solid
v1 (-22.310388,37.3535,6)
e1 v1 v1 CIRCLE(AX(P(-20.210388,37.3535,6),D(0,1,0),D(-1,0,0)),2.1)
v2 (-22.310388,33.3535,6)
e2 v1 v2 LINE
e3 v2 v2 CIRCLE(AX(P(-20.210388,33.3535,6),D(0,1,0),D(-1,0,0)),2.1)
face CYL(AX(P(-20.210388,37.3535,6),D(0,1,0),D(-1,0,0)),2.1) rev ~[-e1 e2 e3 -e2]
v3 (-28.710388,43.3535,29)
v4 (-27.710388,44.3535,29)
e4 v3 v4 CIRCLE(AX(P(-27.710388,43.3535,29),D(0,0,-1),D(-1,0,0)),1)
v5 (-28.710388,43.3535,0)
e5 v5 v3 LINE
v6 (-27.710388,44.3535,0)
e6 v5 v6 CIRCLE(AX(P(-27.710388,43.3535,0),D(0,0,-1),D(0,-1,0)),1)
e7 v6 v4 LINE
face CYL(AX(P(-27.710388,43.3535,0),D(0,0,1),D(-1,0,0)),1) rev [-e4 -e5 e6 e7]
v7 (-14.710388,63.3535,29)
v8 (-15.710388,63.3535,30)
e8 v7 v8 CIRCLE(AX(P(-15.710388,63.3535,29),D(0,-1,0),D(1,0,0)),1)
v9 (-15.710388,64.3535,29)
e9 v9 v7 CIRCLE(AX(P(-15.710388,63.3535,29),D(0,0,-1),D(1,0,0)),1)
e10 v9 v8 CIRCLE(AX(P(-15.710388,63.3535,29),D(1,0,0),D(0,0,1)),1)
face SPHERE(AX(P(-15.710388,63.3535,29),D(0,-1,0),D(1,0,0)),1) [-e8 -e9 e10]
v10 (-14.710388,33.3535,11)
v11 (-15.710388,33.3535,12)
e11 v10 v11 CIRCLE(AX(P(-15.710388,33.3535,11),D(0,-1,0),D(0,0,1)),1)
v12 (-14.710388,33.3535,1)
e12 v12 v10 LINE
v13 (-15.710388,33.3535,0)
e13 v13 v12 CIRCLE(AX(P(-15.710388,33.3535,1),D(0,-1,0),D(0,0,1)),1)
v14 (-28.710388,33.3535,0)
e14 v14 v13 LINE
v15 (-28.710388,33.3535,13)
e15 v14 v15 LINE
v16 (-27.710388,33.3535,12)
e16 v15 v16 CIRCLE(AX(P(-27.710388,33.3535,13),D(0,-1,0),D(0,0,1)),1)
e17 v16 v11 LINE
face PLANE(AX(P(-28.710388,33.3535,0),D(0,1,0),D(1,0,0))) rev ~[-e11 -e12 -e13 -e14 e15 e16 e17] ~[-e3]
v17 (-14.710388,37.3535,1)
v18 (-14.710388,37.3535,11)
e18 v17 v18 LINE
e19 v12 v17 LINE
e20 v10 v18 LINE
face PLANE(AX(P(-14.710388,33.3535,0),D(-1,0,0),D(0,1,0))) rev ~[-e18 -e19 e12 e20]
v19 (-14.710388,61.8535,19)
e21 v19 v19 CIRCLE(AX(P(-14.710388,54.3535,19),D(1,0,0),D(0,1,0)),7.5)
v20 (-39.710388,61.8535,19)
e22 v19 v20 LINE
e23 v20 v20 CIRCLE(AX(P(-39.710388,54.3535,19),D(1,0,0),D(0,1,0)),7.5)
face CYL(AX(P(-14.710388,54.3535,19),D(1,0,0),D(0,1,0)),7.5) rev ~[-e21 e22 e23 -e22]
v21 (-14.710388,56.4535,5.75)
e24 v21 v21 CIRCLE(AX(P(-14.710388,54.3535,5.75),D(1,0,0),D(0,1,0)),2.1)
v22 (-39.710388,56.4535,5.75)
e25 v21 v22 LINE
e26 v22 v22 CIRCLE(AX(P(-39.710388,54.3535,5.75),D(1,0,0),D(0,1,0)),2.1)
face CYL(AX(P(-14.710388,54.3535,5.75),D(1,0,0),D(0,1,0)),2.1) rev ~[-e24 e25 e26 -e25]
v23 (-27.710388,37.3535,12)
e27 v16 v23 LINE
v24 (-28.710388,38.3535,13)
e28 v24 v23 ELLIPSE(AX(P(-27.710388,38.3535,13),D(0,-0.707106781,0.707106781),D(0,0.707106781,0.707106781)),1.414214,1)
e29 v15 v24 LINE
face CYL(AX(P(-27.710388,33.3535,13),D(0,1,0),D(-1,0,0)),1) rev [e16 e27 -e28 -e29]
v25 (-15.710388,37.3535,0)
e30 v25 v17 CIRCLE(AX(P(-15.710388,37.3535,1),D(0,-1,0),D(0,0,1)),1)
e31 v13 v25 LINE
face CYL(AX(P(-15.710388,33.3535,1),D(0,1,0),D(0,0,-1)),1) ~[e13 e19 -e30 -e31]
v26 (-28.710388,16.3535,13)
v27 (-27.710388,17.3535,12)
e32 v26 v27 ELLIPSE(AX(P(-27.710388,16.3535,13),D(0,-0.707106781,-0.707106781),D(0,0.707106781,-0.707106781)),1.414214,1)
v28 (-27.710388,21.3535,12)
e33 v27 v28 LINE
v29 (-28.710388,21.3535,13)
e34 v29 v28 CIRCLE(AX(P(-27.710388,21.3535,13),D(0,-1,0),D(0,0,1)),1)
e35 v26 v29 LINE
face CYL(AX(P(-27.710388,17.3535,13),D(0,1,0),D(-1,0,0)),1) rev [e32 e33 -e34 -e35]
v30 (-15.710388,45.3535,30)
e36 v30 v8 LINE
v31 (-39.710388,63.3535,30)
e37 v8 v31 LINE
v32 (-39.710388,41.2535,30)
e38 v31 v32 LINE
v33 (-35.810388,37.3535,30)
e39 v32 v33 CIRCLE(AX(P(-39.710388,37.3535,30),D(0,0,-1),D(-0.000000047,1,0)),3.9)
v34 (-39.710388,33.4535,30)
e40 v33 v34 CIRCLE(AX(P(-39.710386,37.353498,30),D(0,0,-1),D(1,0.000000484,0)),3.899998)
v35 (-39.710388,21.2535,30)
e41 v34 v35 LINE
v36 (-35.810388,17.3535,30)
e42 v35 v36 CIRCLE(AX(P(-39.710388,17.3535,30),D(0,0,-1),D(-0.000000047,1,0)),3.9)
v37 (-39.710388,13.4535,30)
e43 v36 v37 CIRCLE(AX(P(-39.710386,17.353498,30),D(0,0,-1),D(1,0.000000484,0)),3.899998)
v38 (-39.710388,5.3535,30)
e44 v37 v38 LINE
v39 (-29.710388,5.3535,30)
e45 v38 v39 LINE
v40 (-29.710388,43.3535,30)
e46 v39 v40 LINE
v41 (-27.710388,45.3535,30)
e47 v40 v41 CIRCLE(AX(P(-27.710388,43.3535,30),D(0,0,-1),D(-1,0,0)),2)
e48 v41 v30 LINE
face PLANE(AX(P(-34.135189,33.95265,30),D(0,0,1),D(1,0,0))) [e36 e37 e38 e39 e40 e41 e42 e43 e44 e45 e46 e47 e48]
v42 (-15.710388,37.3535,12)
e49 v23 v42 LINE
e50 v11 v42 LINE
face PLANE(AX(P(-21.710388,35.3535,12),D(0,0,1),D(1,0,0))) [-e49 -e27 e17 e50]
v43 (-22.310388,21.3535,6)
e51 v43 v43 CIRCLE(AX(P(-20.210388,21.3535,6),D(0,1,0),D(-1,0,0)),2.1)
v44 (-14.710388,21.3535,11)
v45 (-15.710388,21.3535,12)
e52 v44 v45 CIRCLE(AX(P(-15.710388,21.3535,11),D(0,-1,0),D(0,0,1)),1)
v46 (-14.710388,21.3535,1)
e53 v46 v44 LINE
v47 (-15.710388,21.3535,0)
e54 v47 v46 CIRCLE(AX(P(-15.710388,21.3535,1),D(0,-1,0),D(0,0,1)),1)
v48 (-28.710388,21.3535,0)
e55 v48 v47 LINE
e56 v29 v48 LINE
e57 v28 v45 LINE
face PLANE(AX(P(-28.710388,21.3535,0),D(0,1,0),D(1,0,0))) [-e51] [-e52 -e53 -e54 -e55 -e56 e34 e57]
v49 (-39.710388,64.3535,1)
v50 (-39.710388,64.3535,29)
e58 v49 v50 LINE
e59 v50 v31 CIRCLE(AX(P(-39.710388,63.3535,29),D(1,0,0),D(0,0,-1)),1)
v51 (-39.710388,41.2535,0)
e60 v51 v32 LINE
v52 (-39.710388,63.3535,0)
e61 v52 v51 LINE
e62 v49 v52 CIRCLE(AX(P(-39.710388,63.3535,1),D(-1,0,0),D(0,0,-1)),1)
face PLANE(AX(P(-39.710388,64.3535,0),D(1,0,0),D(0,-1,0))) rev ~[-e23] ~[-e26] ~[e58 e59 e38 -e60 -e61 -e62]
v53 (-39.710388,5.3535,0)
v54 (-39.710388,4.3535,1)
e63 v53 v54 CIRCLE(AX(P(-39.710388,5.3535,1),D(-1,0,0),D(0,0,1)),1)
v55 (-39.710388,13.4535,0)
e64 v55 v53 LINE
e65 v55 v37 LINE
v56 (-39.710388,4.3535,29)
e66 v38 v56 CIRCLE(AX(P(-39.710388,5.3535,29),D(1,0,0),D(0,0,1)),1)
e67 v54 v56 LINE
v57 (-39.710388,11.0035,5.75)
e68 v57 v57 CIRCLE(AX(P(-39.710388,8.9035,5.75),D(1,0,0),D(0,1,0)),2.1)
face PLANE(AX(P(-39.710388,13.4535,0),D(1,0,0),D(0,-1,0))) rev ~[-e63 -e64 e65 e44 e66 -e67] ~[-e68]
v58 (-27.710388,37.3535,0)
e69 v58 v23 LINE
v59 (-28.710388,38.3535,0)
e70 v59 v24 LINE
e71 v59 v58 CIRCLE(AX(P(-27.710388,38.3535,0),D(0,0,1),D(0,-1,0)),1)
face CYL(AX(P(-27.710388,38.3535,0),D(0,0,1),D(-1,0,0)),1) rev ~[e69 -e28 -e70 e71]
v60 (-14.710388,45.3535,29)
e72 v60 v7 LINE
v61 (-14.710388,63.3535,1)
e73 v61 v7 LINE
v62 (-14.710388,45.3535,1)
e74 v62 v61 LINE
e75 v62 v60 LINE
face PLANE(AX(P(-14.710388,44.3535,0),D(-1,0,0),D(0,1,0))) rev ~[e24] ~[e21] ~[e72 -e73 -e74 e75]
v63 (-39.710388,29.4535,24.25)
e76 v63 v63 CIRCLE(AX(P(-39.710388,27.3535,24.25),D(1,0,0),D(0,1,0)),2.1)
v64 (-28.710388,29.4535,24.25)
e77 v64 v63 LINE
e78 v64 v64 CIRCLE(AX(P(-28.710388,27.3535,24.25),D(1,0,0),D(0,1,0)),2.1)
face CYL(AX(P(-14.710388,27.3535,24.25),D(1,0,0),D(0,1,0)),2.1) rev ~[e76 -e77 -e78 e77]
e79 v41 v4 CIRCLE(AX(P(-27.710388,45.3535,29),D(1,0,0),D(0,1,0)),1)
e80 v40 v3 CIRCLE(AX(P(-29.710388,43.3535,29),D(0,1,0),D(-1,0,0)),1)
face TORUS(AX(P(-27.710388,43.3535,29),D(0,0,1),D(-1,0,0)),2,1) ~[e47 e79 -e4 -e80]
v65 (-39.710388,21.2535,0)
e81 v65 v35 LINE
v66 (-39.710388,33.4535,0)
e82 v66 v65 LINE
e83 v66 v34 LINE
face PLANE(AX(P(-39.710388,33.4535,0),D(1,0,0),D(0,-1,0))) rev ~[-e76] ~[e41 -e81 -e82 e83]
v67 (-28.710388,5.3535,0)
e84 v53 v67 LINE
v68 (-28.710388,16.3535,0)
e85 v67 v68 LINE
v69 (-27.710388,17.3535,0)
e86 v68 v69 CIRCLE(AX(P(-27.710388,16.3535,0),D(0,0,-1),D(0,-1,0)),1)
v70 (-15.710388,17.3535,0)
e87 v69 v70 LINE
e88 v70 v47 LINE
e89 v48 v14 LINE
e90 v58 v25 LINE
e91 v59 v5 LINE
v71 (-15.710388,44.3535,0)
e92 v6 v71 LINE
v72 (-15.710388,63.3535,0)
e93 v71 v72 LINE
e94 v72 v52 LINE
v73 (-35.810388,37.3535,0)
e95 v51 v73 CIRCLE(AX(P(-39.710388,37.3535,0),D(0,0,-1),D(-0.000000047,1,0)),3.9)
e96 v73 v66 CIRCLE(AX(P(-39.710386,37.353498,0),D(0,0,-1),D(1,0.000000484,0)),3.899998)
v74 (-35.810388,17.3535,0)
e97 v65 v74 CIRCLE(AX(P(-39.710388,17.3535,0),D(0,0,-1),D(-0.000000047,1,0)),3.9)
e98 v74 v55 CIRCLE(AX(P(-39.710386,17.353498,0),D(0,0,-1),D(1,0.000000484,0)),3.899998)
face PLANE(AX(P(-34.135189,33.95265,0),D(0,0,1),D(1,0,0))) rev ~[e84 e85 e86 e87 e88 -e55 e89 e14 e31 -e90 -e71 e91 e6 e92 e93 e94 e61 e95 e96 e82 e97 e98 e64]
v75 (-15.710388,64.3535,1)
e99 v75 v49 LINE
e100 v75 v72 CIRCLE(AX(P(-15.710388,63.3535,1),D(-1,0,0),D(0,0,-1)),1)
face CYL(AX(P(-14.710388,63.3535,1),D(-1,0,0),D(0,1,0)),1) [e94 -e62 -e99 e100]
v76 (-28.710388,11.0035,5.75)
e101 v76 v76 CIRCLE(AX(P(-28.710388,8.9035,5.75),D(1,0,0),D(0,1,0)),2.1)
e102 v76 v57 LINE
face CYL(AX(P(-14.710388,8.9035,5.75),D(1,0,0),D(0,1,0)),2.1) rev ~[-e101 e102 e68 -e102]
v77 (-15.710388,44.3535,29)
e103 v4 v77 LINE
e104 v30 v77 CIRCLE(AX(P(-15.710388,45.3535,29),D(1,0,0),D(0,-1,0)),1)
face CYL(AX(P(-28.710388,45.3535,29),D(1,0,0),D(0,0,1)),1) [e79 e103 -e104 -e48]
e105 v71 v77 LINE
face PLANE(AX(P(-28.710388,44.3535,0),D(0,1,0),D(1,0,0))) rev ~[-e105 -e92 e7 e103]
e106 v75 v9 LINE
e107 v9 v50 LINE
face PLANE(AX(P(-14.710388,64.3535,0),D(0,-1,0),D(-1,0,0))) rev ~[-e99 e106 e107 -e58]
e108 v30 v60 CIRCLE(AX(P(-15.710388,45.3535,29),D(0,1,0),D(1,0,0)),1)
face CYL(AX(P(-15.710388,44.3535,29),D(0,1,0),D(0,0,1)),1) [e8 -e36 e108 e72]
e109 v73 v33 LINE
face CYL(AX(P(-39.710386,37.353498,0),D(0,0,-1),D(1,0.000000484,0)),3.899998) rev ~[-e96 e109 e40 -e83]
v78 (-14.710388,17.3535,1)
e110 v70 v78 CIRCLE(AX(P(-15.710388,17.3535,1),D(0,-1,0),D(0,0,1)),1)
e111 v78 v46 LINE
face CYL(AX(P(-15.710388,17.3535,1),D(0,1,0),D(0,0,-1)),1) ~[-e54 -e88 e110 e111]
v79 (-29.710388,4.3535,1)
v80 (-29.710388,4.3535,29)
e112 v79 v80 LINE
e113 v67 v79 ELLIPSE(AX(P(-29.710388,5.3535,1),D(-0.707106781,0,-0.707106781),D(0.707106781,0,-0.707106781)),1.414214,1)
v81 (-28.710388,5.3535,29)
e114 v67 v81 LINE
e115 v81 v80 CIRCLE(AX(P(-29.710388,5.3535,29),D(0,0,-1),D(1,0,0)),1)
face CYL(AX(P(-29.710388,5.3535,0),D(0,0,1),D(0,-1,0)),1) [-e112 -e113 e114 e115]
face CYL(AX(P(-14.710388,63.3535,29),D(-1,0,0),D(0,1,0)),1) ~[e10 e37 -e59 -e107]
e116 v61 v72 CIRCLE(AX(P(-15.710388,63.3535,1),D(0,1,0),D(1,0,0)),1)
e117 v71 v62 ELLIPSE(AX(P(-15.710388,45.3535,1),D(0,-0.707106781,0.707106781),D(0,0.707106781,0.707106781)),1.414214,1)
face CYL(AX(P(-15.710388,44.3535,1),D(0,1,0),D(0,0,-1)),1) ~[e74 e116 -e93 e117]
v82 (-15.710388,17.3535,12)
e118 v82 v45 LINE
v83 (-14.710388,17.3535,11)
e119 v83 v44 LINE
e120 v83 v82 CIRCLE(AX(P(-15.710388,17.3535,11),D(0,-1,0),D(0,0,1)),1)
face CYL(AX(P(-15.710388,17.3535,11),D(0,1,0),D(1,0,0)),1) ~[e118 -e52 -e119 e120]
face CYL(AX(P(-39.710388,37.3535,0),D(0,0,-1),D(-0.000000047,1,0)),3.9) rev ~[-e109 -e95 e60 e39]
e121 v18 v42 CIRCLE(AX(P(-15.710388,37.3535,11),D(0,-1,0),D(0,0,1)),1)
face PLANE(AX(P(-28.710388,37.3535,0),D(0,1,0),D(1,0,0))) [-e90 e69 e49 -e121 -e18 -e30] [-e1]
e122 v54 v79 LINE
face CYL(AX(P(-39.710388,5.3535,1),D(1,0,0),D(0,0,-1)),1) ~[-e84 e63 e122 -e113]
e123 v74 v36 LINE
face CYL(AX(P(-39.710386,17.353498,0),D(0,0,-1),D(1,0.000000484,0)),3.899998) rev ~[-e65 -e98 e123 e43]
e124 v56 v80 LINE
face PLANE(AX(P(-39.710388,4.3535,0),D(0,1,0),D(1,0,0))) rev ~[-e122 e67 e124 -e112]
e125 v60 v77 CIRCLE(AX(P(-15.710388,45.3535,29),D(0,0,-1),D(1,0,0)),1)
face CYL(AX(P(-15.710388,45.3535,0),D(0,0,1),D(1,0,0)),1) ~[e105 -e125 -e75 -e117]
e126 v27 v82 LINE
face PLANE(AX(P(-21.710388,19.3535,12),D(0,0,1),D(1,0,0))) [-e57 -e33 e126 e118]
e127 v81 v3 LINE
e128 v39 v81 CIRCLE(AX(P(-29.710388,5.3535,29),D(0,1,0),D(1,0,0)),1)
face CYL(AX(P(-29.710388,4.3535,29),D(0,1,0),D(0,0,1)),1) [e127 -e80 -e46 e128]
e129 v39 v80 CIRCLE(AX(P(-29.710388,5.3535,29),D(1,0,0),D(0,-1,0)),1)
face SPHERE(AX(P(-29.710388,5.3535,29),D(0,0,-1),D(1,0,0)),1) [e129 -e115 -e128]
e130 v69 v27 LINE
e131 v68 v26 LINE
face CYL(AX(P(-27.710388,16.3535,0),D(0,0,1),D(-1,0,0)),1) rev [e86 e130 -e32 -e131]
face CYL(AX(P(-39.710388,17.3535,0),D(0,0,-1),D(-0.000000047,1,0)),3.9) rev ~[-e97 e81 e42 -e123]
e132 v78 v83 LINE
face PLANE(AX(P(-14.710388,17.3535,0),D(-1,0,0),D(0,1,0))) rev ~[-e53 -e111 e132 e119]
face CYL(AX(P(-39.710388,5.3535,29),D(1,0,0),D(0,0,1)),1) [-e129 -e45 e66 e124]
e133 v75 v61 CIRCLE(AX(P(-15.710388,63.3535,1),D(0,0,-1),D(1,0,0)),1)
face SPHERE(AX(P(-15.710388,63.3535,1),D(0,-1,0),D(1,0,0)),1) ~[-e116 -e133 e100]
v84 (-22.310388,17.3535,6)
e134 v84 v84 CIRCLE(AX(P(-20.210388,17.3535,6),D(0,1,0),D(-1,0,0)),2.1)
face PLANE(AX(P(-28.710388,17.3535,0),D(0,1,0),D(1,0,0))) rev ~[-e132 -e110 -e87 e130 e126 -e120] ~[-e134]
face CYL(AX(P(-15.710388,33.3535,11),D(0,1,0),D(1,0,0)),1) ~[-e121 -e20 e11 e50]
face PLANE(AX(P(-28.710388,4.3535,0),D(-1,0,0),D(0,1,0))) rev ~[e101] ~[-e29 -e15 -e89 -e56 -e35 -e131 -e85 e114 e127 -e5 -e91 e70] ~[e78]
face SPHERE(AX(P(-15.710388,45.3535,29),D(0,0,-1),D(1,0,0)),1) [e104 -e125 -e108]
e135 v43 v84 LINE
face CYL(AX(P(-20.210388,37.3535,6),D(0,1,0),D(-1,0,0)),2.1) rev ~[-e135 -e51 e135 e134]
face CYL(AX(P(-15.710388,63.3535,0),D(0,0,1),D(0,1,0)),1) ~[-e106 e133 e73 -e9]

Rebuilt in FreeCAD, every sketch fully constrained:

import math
import FreeCAD as App
import Part
import Sketcher
from FreeCAD import Vector


def edges_at(feature, points):
    """Names of the edges that pass closest to the given points."""
    edges = feature.Shape.Edges
    near = lambda p: min(range(len(edges)), key=lambda i: edges[i].distToShape(Part.Vertex(*p))[0])
    return sorted({f"Edge{near(p) + 1}" for p in points})


def add_polygon(sketch, points):
    """Adds a closed chain of lines whose ends are joined by coincident constraints."""
    first, n = sketch.GeometryCount, len(points)
    for a, b in zip(points, points[1:] + points[:1]):
        sketch.addGeometry(Part.LineSegment(App.Vector(*a, 0), App.Vector(*b, 0)), False)
    for i in range(n):
        sketch.addConstraint(Sketcher.Constraint("Coincident", first + i, 2, first + (i + 1) % n, 1))

doc = App.newDocument("Part")
body = doc.addObject("PartDesign::Body", "Body")

sketch1 = body.newObject("Sketcher::SketchObject", "Sketch")
sketch1.AttachmentSupport = (doc.getObject("XY_Plane"), [""])
sketch1.MapMode = "FlatFace"
sketch1.addGeometry(Part.LineSegment(Vector(-39.7, 64.4, 0), Vector(-39.7, 41.3, 0)), False)
sketch1.addGeometry(Part.ArcOfCircle(Part.Circle(Vector(-39.7, 37.4, 0), Vector(0, 0, 1), 3.9), math.radians(0), math.radians(90)), False)
sketch1.addGeometry(Part.ArcOfCircle(Part.Circle(Vector(-39.7, 37.4, 0), Vector(0, 0, 1), 3.9), math.radians(-90), math.radians(0)), False)
sketch1.addGeometry(Part.LineSegment(Vector(-39.7, 33.5, 0), Vector(-39.7, 21.3, 0)), False)
sketch1.addGeometry(Part.ArcOfCircle(Part.Circle(Vector(-39.7, 17.4, 0), Vector(0, 0, 1), 3.9), math.radians(0), math.radians(90)), False)
sketch1.addGeometry(Part.ArcOfCircle(Part.Circle(Vector(-39.7, 17.4, 0), Vector(0, 0, 1), 3.9), math.radians(-90), math.radians(0)), False)
sketch1.addGeometry(Part.LineSegment(Vector(-39.7, 13.5, 0), Vector(-39.7, 4.4, 0)), False)
sketch1.addGeometry(Part.LineSegment(Vector(-39.7, 4.4, 0), Vector(-28.7, 4.4, 0)), False)
sketch1.addGeometry(Part.LineSegment(Vector(-28.7, 4.4, 0), Vector(-28.7, 44.4, 0)), False)
sketch1.addGeometry(Part.LineSegment(Vector(-28.7, 44.4, 0), Vector(-14.7, 44.4, 0)), False)
sketch1.addGeometry(Part.LineSegment(Vector(-14.7, 44.4, 0), Vector(-14.7, 64.4, 0)), False)
sketch1.addGeometry(Part.LineSegment(Vector(-14.7, 64.4, 0), Vector(-39.7, 64.4, 0)), False)
sketch1.addConstraint(Sketcher.Constraint("Coincident", 0, 2, 1, 2))
sketch1.addConstraint(Sketcher.Constraint("Tangent", 1, 1, 2, 2))
sketch1.addConstraint(Sketcher.Constraint("Coincident", 2, 1, 3, 1))
sketch1.addConstraint(Sketcher.Constraint("Coincident", 3, 2, 4, 2))
sketch1.addConstraint(Sketcher.Constraint("Tangent", 4, 1, 5, 2))
sketch1.addConstraint(Sketcher.Constraint("Coincident", 5, 1, 6, 1))
sketch1.addConstraint(Sketcher.Constraint("Coincident", 6, 2, 7, 1))
sketch1.addConstraint(Sketcher.Constraint("Coincident", 7, 2, 8, 1))
sketch1.addConstraint(Sketcher.Constraint("Coincident", 8, 2, 9, 1))
sketch1.addConstraint(Sketcher.Constraint("Coincident", 9, 2, 10, 1))
sketch1.addConstraint(Sketcher.Constraint("Coincident", 10, 2, 11, 1))
sketch1.addConstraint(Sketcher.Constraint("Coincident", 11, 2, 0, 1))
sketch1.addConstraint(Sketcher.Constraint("Vertical", 0))
sketch1.addConstraint(Sketcher.Constraint("Vertical", 3))
sketch1.addConstraint(Sketcher.Constraint("Vertical", 6))
sketch1.addConstraint(Sketcher.Constraint("Horizontal", 7))
sketch1.addConstraint(Sketcher.Constraint("Vertical", 8))
sketch1.addConstraint(Sketcher.Constraint("Horizontal", 9))
sketch1.addConstraint(Sketcher.Constraint("Vertical", 10))
sketch1.addConstraint(Sketcher.Constraint("Horizontal", 11))
sketch1.addConstraint(Sketcher.Constraint("Equal", 1, 2))
sketch1.addConstraint(Sketcher.Constraint("Equal", 2, 4))
sketch1.addConstraint(Sketcher.Constraint("Equal", 4, 5))
sketch1.addConstraint(Sketcher.Constraint("Horizontal", 2, 3, 1, 1))
sketch1.addConstraint(Sketcher.Constraint("Horizontal", 5, 3, 4, 1))
sketch1.addConstraint(Sketcher.Constraint("Vertical", 2, 3, 4, 3))
sketch1.addConstraint(Sketcher.Constraint("Vertical", 5, 3, 0, 2))
sketch1.addConstraint(Sketcher.Constraint("Vertical", 0, 2, 2, 1))
sketch1.addConstraint(Sketcher.Constraint("Vertical", 3, 2, 5, 1))
sketch1.addConstraint(Sketcher.Constraint("Radius", 1, 3.9))
sketch1.addConstraint(Sketcher.Constraint("DistanceX", 7, 1, 7, 2, 11.0))
sketch1.addConstraint(Sketcher.Constraint("DistanceX", 9, 1, 9, 2, 14.0))
sketch1.addConstraint(Sketcher.Constraint("DistanceY", 8, 1, 8, 2, 40.0))
sketch1.addConstraint(Sketcher.Constraint("DistanceY", 10, 1, 10, 2, 20.0))
sketch1.addConstraint(Sketcher.Constraint("DistanceY", 0, 2, 0, 1, 23.1))
sketch1.addConstraint(Sketcher.Constraint("DistanceY", 3, 2, 3, 1, 12.2))
sketch1.addConstraint(Sketcher.Constraint("DistanceY", -1, 1, 1, 3, 37.3535))
sketch1.addConstraint(Sketcher.Constraint("DistanceX", 0, 2, -1, 1, 39.710388))
pad1 = body.newObject("PartDesign::Pad", "Pad")
pad1.Profile = sketch1
pad1.Length = 30

sketch2 = body.newObject("Sketcher::SketchObject", "Sketch001")
sketch2.AttachmentSupport = (doc.getObject("XY_Plane"), [""])
sketch2.MapMode = "FlatFace"
add_polygon(sketch2, [(-28.7, 37.4), (-28.7, 33.4), (-14.7, 33.4), (-14.7, 37.4)])
add_polygon(sketch2, [(-28.7, 21.4), (-28.7, 17.4), (-14.7, 17.4), (-14.7, 21.4)])
sketch2.addConstraint(Sketcher.Constraint("Vertical", 0))
sketch2.addConstraint(Sketcher.Constraint("Horizontal", 1))
sketch2.addConstraint(Sketcher.Constraint("Vertical", 2))
sketch2.addConstraint(Sketcher.Constraint("Horizontal", 3))
sketch2.addConstraint(Sketcher.Constraint("Vertical", 4))
sketch2.addConstraint(Sketcher.Constraint("Horizontal", 5))
sketch2.addConstraint(Sketcher.Constraint("Vertical", 6))
sketch2.addConstraint(Sketcher.Constraint("Horizontal", 7))
sketch2.addConstraint(Sketcher.Constraint("Vertical", 3, 2, 4, 2))
sketch2.addConstraint(Sketcher.Constraint("Vertical", 2, 2, 5, 2))
sketch2.addConstraint(Sketcher.Constraint("Equal", 2, 4))
sketch2.addConstraint(Sketcher.Constraint("DistanceX", 1, 1, 1, 2, 14.0))
sketch2.addConstraint(Sketcher.Constraint("DistanceY", 0, 2, 0, 1, 4.0))
sketch2.addConstraint(Sketcher.Constraint("DistanceY", 4, 2, 0, 2, 16.0))
sketch2.addConstraint(Sketcher.Constraint("DistanceY", -1, 1, 0, 2, 33.3535))
sketch2.addConstraint(Sketcher.Constraint("DistanceX", 0, 2, -1, 1, 28.710388))
pad2 = body.newObject("PartDesign::Pad", "Pad001")
pad2.Profile = sketch2
pad2.Length = 12

sketch3 = body.newObject("Sketcher::SketchObject", "Sketch002")
sketch3.AttachmentSupport = (doc.getObject("YZ_Plane"), [""])
sketch3.MapMode = "FlatFace"
sketch3.AttachmentOffset = App.Placement(Vector(0, 0, -14.710388), App.Rotation())
sketch3.addGeometry(Part.Circle(Vector(54.4, 19, 0), Vector(0, 0, 1), 7.5), False)
sketch3.addGeometry(Part.Circle(Vector(54.4, 5.8, 0), Vector(0, 0, 1), 2.1), False)
sketch3.addGeometry(Part.Circle(Vector(27.4, 24.2, 0), Vector(0, 0, 1), 2.1), False)
sketch3.addGeometry(Part.Circle(Vector(8.9, 5.8, 0), Vector(0, 0, 1), 2.1), False)
sketch3.addConstraint(Sketcher.Constraint("Equal", 1, 2))
sketch3.addConstraint(Sketcher.Constraint("Equal", 2, 3))
sketch3.addConstraint(Sketcher.Constraint("Horizontal", 1, 3, 3, 3))
sketch3.addConstraint(Sketcher.Constraint("Vertical", 0, 3, 1, 3))
sketch3.addConstraint(Sketcher.Constraint("Diameter", 0, 15.0))
sketch3.addConstraint(Sketcher.Constraint("Diameter", 1, 4.2))
sketch3.addConstraint(Sketcher.Constraint("DistanceY", -1, 1, 0, 3, 19.0))
sketch3.addConstraint(Sketcher.Constraint("DistanceX", 2, 3, 0, 3, 27.0))
sketch3.addConstraint(Sketcher.Constraint("DistanceY", 1, 3, 2, 3, 18.5))
sketch3.addConstraint(Sketcher.Constraint("DistanceY", -1, 1, 1, 3, 5.75))
sketch3.addConstraint(Sketcher.Constraint("DistanceX", 3, 3, 2, 3, 18.45))
sketch3.addConstraint(Sketcher.Constraint("DistanceX", -1, 1, 0, 3, 54.3535))
pocket1 = body.newObject("PartDesign::Pocket", "Pocket")
pocket1.Profile = sketch3
pocket1.Type = "ThroughAll"

sketch4 = body.newObject("Sketcher::SketchObject", "Sketch003")
sketch4.AttachmentSupport = (doc.getObject("XZ_Plane"), [""])
sketch4.MapMode = "FlatFace"
sketch4.AttachmentOffset = App.Placement(Vector(0, 0, -37.3535), App.Rotation())
sketch4.addGeometry(Part.Circle(Vector(-20.2, 6, 0), Vector(0, 0, 1), 2.1), False)
sketch4.addConstraint(Sketcher.Constraint("Diameter", 0, 4.2))
sketch4.addConstraint(Sketcher.Constraint("DistanceY", -1, 1, 0, 3, 6.0))
sketch4.addConstraint(Sketcher.Constraint("DistanceX", 0, 3, -1, 1, 20.210388))
pocket2 = body.newObject("PartDesign::Pocket", "Pocket001")
pocket2.Profile = sketch4
pocket2.Length = 25
pocket2.Reversed = True
doc.recompute()

fillet = body.newObject("PartDesign::Fillet", "Fillet")
fillet.Base = (pocket2, edges_at(pocket2, [
    (-14.71, 35.353, 12),
    (-14.71, 19.354, 12),
    (-14.71, 19.354, 0),
    (-14.71, 54.353, 0),
    (-14.71, 44.353, 15),
    (-14.71, 54.353, 30),
    (-14.71, 64.353, 15),
    (-27.21, 64.353, 0),
    (-27.21, 64.353, 30),
    (-34.21, 4.354, 0),
    (-28.71, 4.354, 15),
    (-28.71, 24.354, 30),
    (-21.71, 44.353, 30),
    (-28.71, 19.354, 12),
    (-28.71, 35.353, 12),
    (-28.71, 37.353, 6),
    (-28.71, 17.354, 6),
    (-34.21, 4.354, 30),
    (-28.71, 44.353, 15),
    (-14.71, 35.353, 0),
]))
fillet.Radius = 1

doc.recompute()
